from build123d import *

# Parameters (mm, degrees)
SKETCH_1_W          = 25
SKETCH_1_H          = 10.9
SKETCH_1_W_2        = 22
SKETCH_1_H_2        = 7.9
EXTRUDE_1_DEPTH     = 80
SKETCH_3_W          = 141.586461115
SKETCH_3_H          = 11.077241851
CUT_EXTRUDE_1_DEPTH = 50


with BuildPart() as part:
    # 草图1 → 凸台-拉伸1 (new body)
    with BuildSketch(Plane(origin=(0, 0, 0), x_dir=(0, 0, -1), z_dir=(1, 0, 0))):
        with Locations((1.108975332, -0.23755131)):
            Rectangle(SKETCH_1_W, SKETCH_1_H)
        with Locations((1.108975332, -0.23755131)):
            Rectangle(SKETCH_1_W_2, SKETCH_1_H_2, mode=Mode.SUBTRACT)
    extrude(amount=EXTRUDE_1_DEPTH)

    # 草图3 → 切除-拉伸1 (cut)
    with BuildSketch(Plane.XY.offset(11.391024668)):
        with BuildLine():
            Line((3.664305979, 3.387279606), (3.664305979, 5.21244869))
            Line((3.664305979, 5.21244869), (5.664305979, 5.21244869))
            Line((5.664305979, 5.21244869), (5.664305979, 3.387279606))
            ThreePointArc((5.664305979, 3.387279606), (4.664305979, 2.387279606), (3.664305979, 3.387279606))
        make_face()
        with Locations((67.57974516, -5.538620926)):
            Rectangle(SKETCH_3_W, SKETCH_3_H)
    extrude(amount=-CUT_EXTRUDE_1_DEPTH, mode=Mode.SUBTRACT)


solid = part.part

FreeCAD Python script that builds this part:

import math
import FreeCAD as App
import Part
import Sketcher


def add_polygon(sketch, points):
    """Adds a closed chain of lines whose ends are joined by coincident constraints."""
    first, n = sketch.GeometryCount, len(points)
    for a, b in zip(points, points[1:] + points[:1]):
        sketch.addGeometry(Part.LineSegment(App.Vector(*a, 0), App.Vector(*b, 0)), False)
    for i in range(n):
        sketch.addConstraint(Sketcher.Constraint("Coincident", first + i, 2, first + (i + 1) % n, 1))

doc = App.newDocument("Part")
body = doc.addObject("PartDesign::Body", "Body")

sketch1 = body.newObject("Sketcher::SketchObject", "Sketch")
sketch1.AttachmentSupport = (doc.getObject("YZ_Plane"), [""])
sketch1.MapMode = "FlatFace"
add_polygon(sketch1, [(5, 11), (-6, 11), (-6, -14), (5, -14)])
add_polygon(sketch1, [(-4, -12), (-4, 10), (4, 10), (4, -12)])
sketch1.addConstraint([
    Sketcher.Constraint("Horizontal", 0),
    Sketcher.Constraint("Vertical", 1),
    Sketcher.Constraint("Horizontal", 2),
    Sketcher.Constraint("Vertical", 3),
    Sketcher.Constraint("Vertical", 4),
    Sketcher.Constraint("Horizontal", 5),
    Sketcher.Constraint("Vertical", 6),
    Sketcher.Constraint("Horizontal", 7),
    Sketcher.Constraint("DistanceY", 1, 2, 1, 1, 25.0),
    Sketcher.Constraint("DistanceY", 4, 1, 4, 2, 22.0),
    Sketcher.Constraint("DistanceX", 0, 2, 0, 1, 10.9),
    Sketcher.Constraint("DistanceX", 5, 1, 5, 2, 7.9),
    Sketcher.Constraint("DistanceX", 0, 2, 4, 2, 1.5),
    Sketcher.Constraint("DistanceY", 4, 2, 0, 2, 1.5),
    Sketcher.Constraint("DistanceX", 0, 2, -1, 1, 5.687551),
    Sketcher.Constraint("DistanceY", -1, 1, 0, 2, 11.391025),
])
pad1 = body.newObject("PartDesign::Pad", "Pad")
pad1.Profile = sketch1
pad1.Length = 80

sketch2 = body.newObject("Sketcher::SketchObject", "Sketch001")
sketch2.AttachmentSupport = (doc.getObject("XY_Plane"), [""])
sketch2.MapMode = "FlatFace"
sketch2.AttachmentOffset = App.Placement(App.Vector(0, 0, 11.391025), App.Rotation())
sketch2.addGeometry(Part.LineSegment(App.Vector(3.7, 5.2, 0), App.Vector(3.7, 3.4, 0)), False)
sketch2.addGeometry(Part.ArcOfCircle(Part.Circle(App.Vector(4.7, 3.4, 0), App.Vector(0, 0, 1), 1), math.radians(180), math.radians(360)), False)
sketch2.addGeometry(Part.LineSegment(App.Vector(5.7, 3.4, 0), App.Vector(5.7, 5.2, 0)), False)
sketch2.addGeometry(Part.LineSegment(App.Vector(5.7, 5.2, 0), App.Vector(3.7, 5.2, 0)), False)
add_polygon(sketch2, [(-3.2, 0), (-3.2, -11.1), (138.4, -11.1), (138.4, 0)])
sketch2.addConstraint([
    Sketcher.Constraint("Tangent", 0, 2, 1, 1),
    Sketcher.Constraint("Tangent", 1, 2, 2, 1),
    Sketcher.Constraint("Coincident", 2, 2, 3, 1),
    Sketcher.Constraint("Coincident", 3, 2, 0, 1),
    Sketcher.Constraint("Vertical", 0),
    Sketcher.Constraint("Vertical", 2),
    Sketcher.Constraint("Horizontal", 3),
    Sketcher.Constraint("Vertical", 4),
    Sketcher.Constraint("Horizontal", 5),
    Sketcher.Constraint("Vertical", 6),
    Sketcher.Constraint("Horizontal", 7),
    Sketcher.Constraint("PointOnObject", 6, 2, -1),
    Sketcher.Constraint("Radius", 1, 1.0),
    Sketcher.Constraint("DistanceX", 5, 1, 5, 2, 141.586461),
    Sketcher.Constraint("DistanceY", 0, 2, 0, 1, 1.825169),
    Sketcher.Constraint("DistanceY", 4, 2, 4, 1, 11.077242),
    Sketcher.Constraint("DistanceY", -1, 1, 1, 3, 3.38728),
    Sketcher.Constraint("DistanceX", 4, 2, 0, 2, 6.877791),
    Sketcher.Constraint("DistanceX", -1, 1, 1, 3, 4.664306),
])
pocket1 = body.newObject("PartDesign::Pocket", "Pocket")
pocket1.Profile = sketch2
pocket1.Length = 50

doc.recompute()
